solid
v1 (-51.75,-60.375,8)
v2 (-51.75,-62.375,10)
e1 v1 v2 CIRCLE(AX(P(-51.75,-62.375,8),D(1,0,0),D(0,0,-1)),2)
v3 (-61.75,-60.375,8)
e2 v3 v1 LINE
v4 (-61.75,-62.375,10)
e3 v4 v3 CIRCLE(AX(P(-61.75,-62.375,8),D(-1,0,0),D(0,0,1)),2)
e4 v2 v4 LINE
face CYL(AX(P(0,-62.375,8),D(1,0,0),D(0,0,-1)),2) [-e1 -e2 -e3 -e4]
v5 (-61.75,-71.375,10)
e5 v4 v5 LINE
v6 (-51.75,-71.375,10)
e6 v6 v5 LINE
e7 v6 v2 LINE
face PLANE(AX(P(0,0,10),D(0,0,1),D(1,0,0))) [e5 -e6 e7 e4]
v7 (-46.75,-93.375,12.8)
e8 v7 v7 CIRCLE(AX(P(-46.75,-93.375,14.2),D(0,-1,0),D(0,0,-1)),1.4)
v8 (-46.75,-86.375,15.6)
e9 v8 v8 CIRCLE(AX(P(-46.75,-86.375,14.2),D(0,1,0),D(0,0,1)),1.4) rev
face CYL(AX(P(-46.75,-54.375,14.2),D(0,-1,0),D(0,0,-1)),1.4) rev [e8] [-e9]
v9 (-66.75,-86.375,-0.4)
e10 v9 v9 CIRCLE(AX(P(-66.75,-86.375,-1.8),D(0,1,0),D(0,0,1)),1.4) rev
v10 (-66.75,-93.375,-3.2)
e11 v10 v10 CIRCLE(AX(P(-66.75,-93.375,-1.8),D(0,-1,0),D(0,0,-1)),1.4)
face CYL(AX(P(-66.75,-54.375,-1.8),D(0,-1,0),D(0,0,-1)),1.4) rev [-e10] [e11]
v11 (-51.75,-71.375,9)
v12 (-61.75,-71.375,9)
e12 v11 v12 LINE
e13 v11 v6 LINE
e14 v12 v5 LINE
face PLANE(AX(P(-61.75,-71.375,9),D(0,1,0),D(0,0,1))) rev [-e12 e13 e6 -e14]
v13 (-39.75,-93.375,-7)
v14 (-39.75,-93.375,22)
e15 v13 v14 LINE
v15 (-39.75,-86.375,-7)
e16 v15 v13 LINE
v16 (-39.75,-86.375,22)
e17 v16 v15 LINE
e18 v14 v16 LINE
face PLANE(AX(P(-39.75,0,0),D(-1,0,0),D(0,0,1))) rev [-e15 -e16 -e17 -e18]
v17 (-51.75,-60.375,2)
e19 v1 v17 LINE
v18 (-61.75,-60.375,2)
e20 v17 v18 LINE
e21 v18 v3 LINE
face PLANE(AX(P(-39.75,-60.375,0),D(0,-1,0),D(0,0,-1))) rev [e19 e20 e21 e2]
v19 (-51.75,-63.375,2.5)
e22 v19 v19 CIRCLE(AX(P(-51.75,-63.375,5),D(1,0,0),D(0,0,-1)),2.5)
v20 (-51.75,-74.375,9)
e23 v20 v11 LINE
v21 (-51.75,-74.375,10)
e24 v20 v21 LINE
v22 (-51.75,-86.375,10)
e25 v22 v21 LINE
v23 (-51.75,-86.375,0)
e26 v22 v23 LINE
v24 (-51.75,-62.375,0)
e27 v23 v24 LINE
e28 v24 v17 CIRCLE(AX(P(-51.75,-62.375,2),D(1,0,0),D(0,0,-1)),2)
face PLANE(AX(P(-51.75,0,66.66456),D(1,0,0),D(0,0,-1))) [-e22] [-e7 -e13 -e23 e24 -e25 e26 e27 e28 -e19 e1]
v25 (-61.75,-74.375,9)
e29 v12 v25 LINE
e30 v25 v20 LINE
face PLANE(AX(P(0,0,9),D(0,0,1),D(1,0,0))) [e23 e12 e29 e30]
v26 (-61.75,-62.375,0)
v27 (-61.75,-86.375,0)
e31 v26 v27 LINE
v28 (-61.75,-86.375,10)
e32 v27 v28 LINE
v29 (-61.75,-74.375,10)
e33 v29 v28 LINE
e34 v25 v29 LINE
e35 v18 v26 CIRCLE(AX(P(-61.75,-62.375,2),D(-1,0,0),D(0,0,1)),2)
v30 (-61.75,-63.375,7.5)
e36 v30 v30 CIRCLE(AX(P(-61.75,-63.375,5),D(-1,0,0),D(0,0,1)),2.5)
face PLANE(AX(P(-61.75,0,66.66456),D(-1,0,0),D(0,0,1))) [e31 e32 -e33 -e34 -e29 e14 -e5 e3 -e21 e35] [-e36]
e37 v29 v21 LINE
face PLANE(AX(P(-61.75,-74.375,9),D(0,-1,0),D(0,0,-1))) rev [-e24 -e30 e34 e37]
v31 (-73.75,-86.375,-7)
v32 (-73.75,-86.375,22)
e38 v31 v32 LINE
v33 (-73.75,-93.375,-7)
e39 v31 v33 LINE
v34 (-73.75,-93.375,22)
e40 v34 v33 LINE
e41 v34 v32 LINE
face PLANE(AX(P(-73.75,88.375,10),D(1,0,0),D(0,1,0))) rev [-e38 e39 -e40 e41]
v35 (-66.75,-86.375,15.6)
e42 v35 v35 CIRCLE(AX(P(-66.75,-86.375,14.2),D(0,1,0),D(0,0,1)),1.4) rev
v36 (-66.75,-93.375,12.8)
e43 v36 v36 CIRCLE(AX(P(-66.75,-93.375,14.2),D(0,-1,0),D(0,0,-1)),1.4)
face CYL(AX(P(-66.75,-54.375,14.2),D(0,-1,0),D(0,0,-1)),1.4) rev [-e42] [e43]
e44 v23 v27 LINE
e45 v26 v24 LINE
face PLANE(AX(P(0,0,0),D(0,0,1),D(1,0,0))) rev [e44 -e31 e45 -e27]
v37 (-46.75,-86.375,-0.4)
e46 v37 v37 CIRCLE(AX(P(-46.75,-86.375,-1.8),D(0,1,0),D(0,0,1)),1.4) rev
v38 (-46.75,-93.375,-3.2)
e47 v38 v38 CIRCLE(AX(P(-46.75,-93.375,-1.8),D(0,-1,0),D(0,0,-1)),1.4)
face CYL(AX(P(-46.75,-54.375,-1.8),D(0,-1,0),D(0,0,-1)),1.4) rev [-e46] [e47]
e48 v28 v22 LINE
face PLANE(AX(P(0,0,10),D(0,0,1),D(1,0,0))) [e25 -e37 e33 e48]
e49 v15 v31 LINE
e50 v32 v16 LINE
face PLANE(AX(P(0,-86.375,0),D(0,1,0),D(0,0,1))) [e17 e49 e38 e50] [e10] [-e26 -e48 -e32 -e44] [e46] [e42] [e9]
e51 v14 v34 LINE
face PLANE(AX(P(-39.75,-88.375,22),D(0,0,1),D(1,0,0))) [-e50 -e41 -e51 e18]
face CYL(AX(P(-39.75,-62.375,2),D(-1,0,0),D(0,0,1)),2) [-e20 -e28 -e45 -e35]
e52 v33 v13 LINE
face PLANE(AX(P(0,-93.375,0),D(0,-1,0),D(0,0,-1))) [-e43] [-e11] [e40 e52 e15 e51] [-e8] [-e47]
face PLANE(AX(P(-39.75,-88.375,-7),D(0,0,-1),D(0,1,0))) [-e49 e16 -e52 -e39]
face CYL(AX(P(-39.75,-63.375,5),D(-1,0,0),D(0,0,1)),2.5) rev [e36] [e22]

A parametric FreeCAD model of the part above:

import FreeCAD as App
import Part
import Sketcher

V = App.Vector
Q = App.Units.Quantity


def edges_at(feature, points):
    """Names of the edges that pass closest to the given points."""
    edges = feature.Shape.Edges
    near = lambda p: min(range(len(edges)), key=lambda i: edges[i].distToShape(Part.Vertex(*p))[0])
    return sorted({f"Edge{near(p) + 1}" for p in points})

doc = App.newDocument("Part")
params = doc.addObject("Spreadsheet::Sheet", "Params")
for row, (alias, value) in enumerate([
    ("sketch1_width", "147.5 mm"),
    ("sketch1_height", "176.75 mm"),
    ("pad1_length", "10 mm"),
    ("sketch2_width", "15 mm"),
    ("sketch2_height", "29 mm"),
    ("pad2_length", "34 mm"),
    ("sketch3_length", "12 mm"),
    ("sketch3_length2", "15 mm"),
    ("sketch3_length3", "29 mm"),
    ("sketch3_length4", "7 mm"),
    ("pad3_length", "34 mm"),
    ("sketch4_width", "113.5 mm"),
    ("sketch4_height", "176.75 mm"),
    ("pocket1_length", "30 mm"),
    ("sketch5_diameter", "5 mm"),
    ("sketch6_width", "3 mm"),
    ("pocket3_length", "3 mm"),
    ("sketch7_diameter", "5 mm"),
    ("sketch7_width", "10 mm"),
    ("sketch7_width2", "12 mm"),
    ("sketch7_height", "15 mm"),
    ("sketch7_height2", "161.75 mm"),
    ("sketch8_diameter", "5 mm"),
    ("sketch9_width", "2 mm"),
    ("sketch9_height", "10 mm"),
    ("fillet_radius", "2 mm"),
    ("sketch10_diameter", "2.8 mm"),
    ("pocket7_length", "34 mm"),
    ("sketch11_width", "12 mm"),
    ("sketch11_height", "8 mm"),
    ("pocket8_length", "34 mm"),
    ("sketch12_width", "8 mm"),
    ("sketch12_height", "7 mm"),
    ("sketch12_height2", "12 mm"),
    ("pocket9_length", "34 mm"),
    ("sketch13_diameter", "2.8 mm"),
    ("sketch13_width", "34 mm"),
    ("sketch13_height", "29 mm"),
    ("pad4_length", "5 mm"),
    ("sketch14_width", "34 mm"),
    ("sketch14_width2", "10 mm"),
    ("sketch14_height", "29 mm"),
    ("pocket10_length", "5 mm"),
    ("sketch15_width", "10 mm"),
    ("sketch15_height", "3 mm"),
    ("pocket11_length", "1 mm"),
], start=1):
    params.set(f"A{row}", alias)
    params.set(f"B{row}", "=" + value)
    params.setAlias(f"B{row}", alias)

body = doc.addObject("PartDesign::Body", "Body")

sketch1 = body.newObject("Sketcher::SketchObject", "Sketch")
sketch1.AttachmentSupport = (doc.getObject("XY_Plane"), [""])
sketch1.MapMode = "FlatFace"
sketch1.addGeometry(Part.LineSegment(V(-74, 88, 0), V(-74, -88, 0)), False)
sketch1.addGeometry(Part.LineSegment(V(-74, -88, 0), V(74, -88, 0)), False)
sketch1.addGeometry(Part.LineSegment(V(74, -88, 0), V(74, 88, 0)), False)
sketch1.addGeometry(Part.LineSegment(V(74, 88, 0), V(-74, 88, 0)), False)
sketch1.addConstraint(Sketcher.Constraint("Coincident", 0, 2, 1, 1))
sketch1.addConstraint(Sketcher.Constraint("Coincident", 1, 2, 2, 1))
sketch1.addConstraint(Sketcher.Constraint("Coincident", 2, 2, 3, 1))
sketch1.addConstraint(Sketcher.Constraint("Coincident", 3, 2, 0, 1))
sketch1.addConstraint(Sketcher.Constraint("Vertical", 0))
sketch1.addConstraint(Sketcher.Constraint("Horizontal", 1))
sketch1.addConstraint(Sketcher.Constraint("Vertical", 2))
sketch1.addConstraint(Sketcher.Constraint("Horizontal", 3))
sketch1.addConstraint(Sketcher.Constraint("Symmetric", 0, 2, 2, 2, -1, 1))
sketch1.addConstraint(Sketcher.Constraint("DistanceX", 1, 1, 1, 2, 147.5))
sketch1.addConstraint(Sketcher.Constraint("DistanceY", 0, 2, 0, 1, 176.75))
sketch1.setExpression("Constraints[9]", "Params.sketch1_width")
sketch1.setExpression("Constraints[10]", "Params.sketch1_height")
pad1 = body.newObject("PartDesign::Pad", "Pad")
pad1.Profile = sketch1
pad1.setExpression("Length", "Params.pad1_length")

sketch2 = body.newObject("Sketcher::SketchObject", "Sketch001")
sketch2.AttachmentSupport = (doc.getObject("YZ_Plane"), [""])
sketch2.MapMode = "FlatFace"
sketch2.AttachmentOffset = App.Placement(V(0, 0, -73.75), App.Rotation())
sketch2.addGeometry(Part.LineSegment(V(88, -7, 0), V(73, -7, 0)), False)
sketch2.addGeometry(Part.LineSegment(V(73, -7, 0), V(73, 22, 0)), False)
sketch2.addGeometry(Part.LineSegment(V(73, 22, 0), V(88, 22, 0)), False)
sketch2.addGeometry(Part.LineSegment(V(88, 22, 0), V(88, -7, 0)), False)
sketch2.addGeometry(Part.LineSegment(V(-73, -7, 0), V(-88, -7, 0)), False)
sketch2.addGeometry(Part.LineSegment(V(-88, -7, 0), V(-88, 22, 0)), False)
sketch2.addGeometry(Part.LineSegment(V(-88, 22, 0), V(-73, 22, 0)), False)
sketch2.addGeometry(Part.LineSegment(V(-73, 22, 0), V(-73, -7, 0)), False)
sketch2.addConstraint(Sketcher.Constraint("Coincident", 0, 2, 1, 1))
sketch2.addConstraint(Sketcher.Constraint("Coincident", 1, 2, 2, 1))
sketch2.addConstraint(Sketcher.Constraint("Coincident", 2, 2, 3, 1))
sketch2.addConstraint(Sketcher.Constraint("Coincident", 3, 2, 0, 1))
sketch2.addConstraint(Sketcher.Constraint("Coincident", 4, 2, 5, 1))
sketch2.addConstraint(Sketcher.Constraint("Coincident", 5, 2, 6, 1))
sketch2.addConstraint(Sketcher.Constraint("Coincident", 6, 2, 7, 1))
sketch2.addConstraint(Sketcher.Constraint("Coincident", 7, 2, 4, 1))
sketch2.addConstraint(Sketcher.Constraint("Horizontal", 0))
sketch2.addConstraint(Sketcher.Constraint("Vertical", 1))
sketch2.addConstraint(Sketcher.Constraint("Horizontal", 2))
sketch2.addConstraint(Sketcher.Constraint("Vertical", 3))
sketch2.addConstraint(Sketcher.Constraint("Horizontal", 4))
sketch2.addConstraint(Sketcher.Constraint("Vertical", 5))
sketch2.addConstraint(Sketcher.Constraint("Horizontal", 6))
sketch2.addConstraint(Sketcher.Constraint("Vertical", 7))
sketch2.addConstraint(Sketcher.Constraint("Symmetric", 3, 2, 4, 2, -2))
sketch2.addConstraint(Sketcher.Constraint("Symmetric", 1, 2, 6, 2, -2))
sketch2.addConstraint(Sketcher.Constraint("DistanceX", 0, 2, 0, 1, 15.0))
sketch2.addConstraint(Sketcher.Constraint("DistanceY", 1, 1, 1, 2, 29.0))
sketch2.addConstraint(Sketcher.Constraint("DistanceY", 0, 2, -1, 1, 7.0))
sketch2.addConstraint(Sketcher.Constraint("DistanceX", 4, 2, 0, 2, 161.75))
sketch2.setExpression("Constraints[18]", "Params.sketch2_width")
sketch2.setExpression("Constraints[19]", "Params.sketch2_height")
pad2 = body.newObject("PartDesign::Pad", "Pad001")
pad2.Profile = sketch2
pad2.setExpression("Length", "Params.pad2_length")
doc.recompute()

mirrored = body.newObject("PartDesign::Mirrored", "Mirrored")
mirrored.Originals = [pad2]
mirrored.MirrorPlane = (doc.getObject("YZ_Plane"), [""])
body.Tip = mirrored

sketch3 = body.newObject("Sketcher::SketchObject", "Sketch002")
sketch3.AttachmentSupport = (doc.getObject("YZ_Plane"), [""])
sketch3.MapMode = "FlatFace"
sketch3.AttachmentOffset = App.Placement(V(0, 0, -73.75), App.Rotation())
sketch3.addGeometry(Part.LineSegment(V(0, 14, 0), V(24, 47, 0)), False)
sketch3.addGeometry(Part.LineSegment(V(24, 47, 0), V(14, 54, 0)), False)
sketch3.addGeometry(Part.LineSegment(V(14, 54, 0), V(22, 67, 0)), False)
sketch3.addGeometry(Part.LineSegment(V(22, 67, 0), V(46, 50, 0)), False)
sketch3.addGeometry(Part.LineSegment(V(46, 50, 0), V(38, 38, 0)), False)
sketch3.addGeometry(Part.LineSegment(V(38, 38, 0), V(32, 42, 0)), False)
sketch3.addGeometry(Part.LineSegment(V(32, 42, 0), V(10, 10, 0)), False)
sketch3.addGeometry(Part.LineSegment(V(10, 10, 0), V(-10, 10, 0)), False)
sketch3.addGeometry(Part.LineSegment(V(-10, 10, 0), V(-32, 42, 0)), False)
sketch3.addGeometry(Part.LineSegment(V(-32, 42, 0), V(-38, 38, 0)), False)
sketch3.addGeometry(Part.LineSegment(V(-38, 38, 0), V(-46, 50, 0)), False)
sketch3.addGeometry(Part.LineSegment(V(-46, 50, 0), V(-22, 67, 0)), False)
sketch3.addGeometry(Part.LineSegment(V(-22, 67, 0), V(-14, 54, 0)), False)
sketch3.addGeometry(Part.LineSegment(V(-14, 54, 0), V(-24, 47, 0)), False)
sketch3.addGeometry(Part.LineSegment(V(-24, 47, 0), V(0, 14, 0)), False)
sketch3.addConstraint(Sketcher.Constraint("Coincident", 0, 2, 1, 1))
sketch3.addConstraint(Sketcher.Constraint("Coincident", 1, 2, 2, 1))
sketch3.addConstraint(Sketcher.Constraint("Coincident", 2, 2, 3, 1))
sketch3.addConstraint(Sketcher.Constraint("Coincident", 3, 2, 4, 1))
sketch3.addConstraint(Sketcher.Constraint("Coincident", 4, 2, 5, 1))
sketch3.addConstraint(Sketcher.Constraint("Coincident", 5, 2, 6, 1))
sketch3.addConstraint(Sketcher.Constraint("Coincident", 6, 2, 7, 1))
sketch3.addConstraint(Sketcher.Constraint("Coincident", 7, 2, 8, 1))
sketch3.addConstraint(Sketcher.Constraint("Coincident", 8, 2, 9, 1))
sketch3.addConstraint(Sketcher.Constraint("Coincident", 9, 2, 10, 1))
sketch3.addConstraint(Sketcher.Constraint("Coincident", 10, 2, 11, 1))
sketch3.addConstraint(Sketcher.Constraint("Coincident", 11, 2, 12, 1))
sketch3.addConstraint(Sketcher.Constraint("Coincident", 12, 2, 13, 1))
sketch3.addConstraint(Sketcher.Constraint("Coincident", 13, 2, 14, 1))
sketch3.addConstraint(Sketcher.Constraint("Coincident", 14, 2, 0, 1))
sketch3.addConstraint(Sketcher.Constraint("Horizontal", 7))
sketch3.addConstraint(Sketcher.Constraint("Symmetric", 5, 2, 8, 2, -2))
sketch3.addConstraint(Sketcher.Constraint("Symmetric", 4, 2, 9, 2, -2))
sketch3.addConstraint(Sketcher.Constraint("Symmetric", 3, 2, 10, 2, -2))
sketch3.addConstraint(Sketcher.Constraint("Symmetric", 2, 2, 11, 2, -2))
sketch3.addConstraint(Sketcher.Constraint("Symmetric", 1, 2, 12, 2, -2))
sketch3.addConstraint(Sketcher.Constraint("Symmetric", 0, 2, 13, 2, -2))
sketch3.addConstraint(Sketcher.Constraint("PointOnObject", 14, 2, -2))
sketch3.addConstraint(Sketcher.Constraint("Perpendicular", 0, 1))
sketch3.addConstraint(Sketcher.Constraint("Perpendicular", 1, 2))
sketch3.addConstraint(Sketcher.Constraint("Perpendicular", 2, 3))
sketch3.addConstraint(Sketcher.Constraint("Perpendicular", 3, 4))
sketch3.addConstraint(Sketcher.Constraint("Perpendicular", 4, 5))
sketch3.addConstraint(Sketcher.Constraint("Perpendicular", 5, 6))
sketch3.addConstraint(Sketcher.Constraint("Perpendicular", 8, 9))
sketch3.addConstraint(Sketcher.Constraint("Equal", 2, 4))
sketch3.addConstraint(Sketcher.Constraint("Angle", 0, Q("55 deg")))
sketch3.addConstraint(Sketcher.Constraint("Distance", 1, 12.0))
sketch3.addConstraint(Sketcher.Constraint("Distance", 2, 15.0))
sketch3.addConstraint(Sketcher.Constraint("Distance", 3, 29.0))
sketch3.addConstraint(Sketcher.Constraint("Distance", 5, 7.0))
sketch3.addConstraint(Sketcher.Constraint("DistanceY", -1, 1, 6, 2, 10.0))
sketch3.addConstraint(Sketcher.Constraint("DistanceX", -1, 1, 0, 2, 23.651))
sketch3.addConstraint(Sketcher.Constraint("DistanceX", 7, 2, 7, 1, 19.209821))
sketch3.setExpression("Constraints[32]", "Params.sketch3_length")
sketch3.setExpression("Constraints[33]", "Params.sketch3_length2")
sketch3.setExpression("Constraints[34]", "Params.sketch3_length3")
sketch3.setExpression("Constraints[35]", "Params.sketch3_length4")
pad3 = body.newObject("PartDesign::Pad", "Pad002")
pad3.Profile = sketch3
pad3.setExpression("Length", "Params.pad3_length")

sketch4 = body.newObject("Sketcher::SketchObject", "Sketch003")
sketch4.AttachmentSupport = (doc.getObject("XY_Plane"), [""])
sketch4.MapMode = "FlatFace"
sketch4.AttachmentOffset = App.Placement(V(0, 0, 22), App.Rotation())
sketch4.addGeometry(Part.LineSegment(V(-40, 88, 0), V(-40, -88, 0)), False)
sketch4.addGeometry(Part.LineSegment(V(-40, -88, 0), V(74, -88, 0)), False)
sketch4.addGeometry(Part.LineSegment(V(74, -88, 0), V(74, 88, 0)), False)
sketch4.addGeometry(Part.LineSegment(V(74, 88, 0), V(-40, 88, 0)), False)
sketch4.addConstraint(Sketcher.Constraint("Coincident", 0, 2, 1, 1))
sketch4.addConstraint(Sketcher.Constraint("Coincident", 1, 2, 2, 1))
sketch4.addConstraint(Sketcher.Constraint("Coincident", 2, 2, 3, 1))
sketch4.addConstraint(Sketcher.Constraint("Coincident", 3, 2, 0, 1))
sketch4.addConstraint(Sketcher.Constraint("Vertical", 0))
sketch4.addConstraint(Sketcher.Constraint("Horizontal", 1))
sketch4.addConstraint(Sketcher.Constraint("Vertical", 2))
sketch4.addConstraint(Sketcher.Constraint("Horizontal", 3))
sketch4.addConstraint(Sketcher.Constraint("DistanceX", 1, 1, 1, 2, 113.5))
sketch4.addConstraint(Sketcher.Constraint("DistanceY", 0, 2, 0, 1, 176.75))
sketch4.addConstraint(Sketcher.Constraint("DistanceX", 0, 2, -1, 1, 39.75))
sketch4.addConstraint(Sketcher.Constraint("DistanceY", 0, 2, -1, 1, 88.375))
sketch4.setExpression("Constraints[8]", "Params.sketch4_width")
sketch4.setExpression("Constraints[9]", "Params.sketch4_height")
pocket1 = body.newObject("PartDesign::Pocket", "Pocket")
pocket1.Profile = sketch4
pocket1.setExpression("Length", "Params.pocket1_length")

sketch5 = body.newObject("Sketcher::SketchObject", "Sketch004")
sketch5.AttachmentSupport = (doc.getObject("XY_Plane"), [""])
sketch5.MapMode = "FlatFace"
sketch5.addGeometry(Part.Circle(V(-49.8, 58.4, 0), V(0, 0, 1), 2.5), False)
sketch5.addGeometry(Part.Circle(V(-63.8, 58.4, 0), V(0, 0, 1), 2.5), False)
sketch5.addGeometry(Part.Circle(V(-49.8, -53.4, 0), V(0, 0, 1), 2.5), False)
sketch5.addGeometry(Part.Circle(V(-63.8, -53.4, 0), V(0, 0, 1), 2.5), False)
sketch5.addConstraint(Sketcher.Constraint("Equal", 0, 1))
sketch5.addConstraint(Sketcher.Constraint("Equal", 1, 2))
sketch5.addConstraint(Sketcher.Constraint("Equal", 2, 3))
sketch5.addConstraint(Sketcher.Constraint("Horizontal", 0, 3, 1, 3))
sketch5.addConstraint(Sketcher.Constraint("Horizontal", 2, 3, 3, 3))
sketch5.addConstraint(Sketcher.Constraint("Vertical", 0, 3, 2, 3))
sketch5.addConstraint(Sketcher.Constraint("Vertical", 1, 3, 3, 3))
sketch5.addConstraint(Sketcher.Constraint("Diameter", 0, 5.0))
sketch5.addConstraint(Sketcher.Constraint("DistanceX", 1, 3, 0, 3, 14.0))
sketch5.addConstraint(Sketcher.Constraint("DistanceX", 0, 3, -1, 1, 49.75))
sketch5.addConstraint(Sketcher.Constraint("DistanceY", 2, 3, 0, 3, 111.75))
sketch5.addConstraint(Sketcher.Constraint("DistanceY", -1, 1, 0, 3, 58.375))
sketch5.setExpression("Constraints[7]", "Params.sketch5_diameter")
pocket2 = body.newObject("PartDesign::Pocket", "Pocket001")
pocket2.Profile = sketch5
pocket2.Type = "ThroughAll"
pocket2.Reversed = True

sketch6 = body.newObject("Sketcher::SketchObject", "Sketch005")
sketch6.AttachmentSupport = (doc.getObject("XY_Plane"), [""])
sketch6.MapMode = "FlatFace"
sketch6.AttachmentOffset = App.Placement(V(0, 0, -7), App.Rotation())
sketch6.addGeometry(Part.LineSegment(V(-70.8, 88.4, 0), V(-70.8, 85.4, 0)), False)
sketch6.addGeometry(Part.LineSegment(V(-70.8, 85.4, 0), V(-73.8, 85.4, 0)), False)
sketch6.addGeometry(Part.LineSegment(V(-73.8, 85.4, 0), V(-73.8, 88.4, 0)), False)
sketch6.addGeometry(Part.LineSegment(V(-73.8, 88.4, 0), V(-70.8, 88.4, 0)), False)
sketch6.addConstraint(Sketcher.Constraint("Coincident", 0, 2, 1, 1))
sketch6.addConstraint(Sketcher.Constraint("Coincident", 1, 2, 2, 1))
sketch6.addConstraint(Sketcher.Constraint("Coincident", 2, 2, 3, 1))
sketch6.addConstraint(Sketcher.Constraint("Coincident", 3, 2, 0, 1))
sketch6.addConstraint(Sketcher.Constraint("Vertical", 0))
sketch6.addConstraint(Sketcher.Constraint("Horizontal", 1))
sketch6.addConstraint(Sketcher.Constraint("Vertical", 2))
sketch6.addConstraint(Sketcher.Constraint("Horizontal", 3))
sketch6.addConstraint(Sketcher.Constraint("Equal", 3, 0))
sketch6.addConstraint(Sketcher.Constraint("DistanceX", 1, 2, 1, 1, 3.0))
sketch6.addConstraint(Sketcher.Constraint("DistanceX", 0, 2, -1, 1, 70.75))
sketch6.addConstraint(Sketcher.Constraint("DistanceY", -1, 1, 0, 2, 85.375))
sketch6.setExpression("Constraints[9]", "Params.sketch6_width")
pocket3 = body.newObject("PartDesign::Pocket", "Pocket002")
pocket3.Profile = sketch6
pocket3.setExpression("Length", "Params.pocket3_length")
pocket3.Reversed = True

sketch7 = body.newObject("Sketcher::SketchObject", "Sketch006")
sketch7.AttachmentSupport = (doc.getObject("XY_Plane"), [""])
sketch7.MapMode = "FlatFace"
sketch7.addGeometry(Part.LineSegment(V(-51.8, -73.4, 0), V(-51.8, -58.4, 0)), False)
sketch7.addGeometry(Part.LineSegment(V(-51.8, -58.4, 0), V(-61.8, -58.4, 0)), False)
sketch7.addGeometry(Part.LineSegment(V(-61.8, -58.4, 0), V(-61.8, -73.4, 0)), False)
sketch7.addGeometry(Part.LineSegment(V(-61.8, -73.4, 0), V(-73.8, -73.4, 0)), False)
sketch7.addGeometry(Part.LineSegment(V(-73.8, -73.4, 0), V(-73.8, 88.4, 0)), False)
sketch7.addGeometry(Part.LineSegment(V(-73.8, 88.4, 0), V(-39.8, 88.4, 0)), False)
sketch7.addGeometry(Part.LineSegment(V(-39.8, 88.4, 0), V(-39.8, -73.4, 0)), False)
sketch7.addGeometry(Part.LineSegment(V(-39.8, -73.4, 0), V(-51.8, -73.4, 0)), False)
sketch7.addGeometry(Part.Circle(V(-63.8, 58.4, 0), V(0, 0, 1), 2.5), False)
sketch7.addGeometry(Part.Circle(V(-49.8, -53.4, 0), V(0, 0, 1), 2.5), False)
sketch7.addGeometry(Part.Circle(V(-63.8, -53.4, 0), V(0, 0, 1), 2.5), False)
sketch7.addGeometry(Part.Circle(V(-49.8, 58.4, 0), V(0, 0, 1), 2.5), False)
sketch7.addConstraint(Sketcher.Constraint("Coincident", 0, 2, 1, 1))
sketch7.addConstraint(Sketcher.Constraint("Coincident", 1, 2, 2, 1))
sketch7.addConstraint(Sketcher.Constraint("Coincident", 2, 2, 3, 1))
sketch7.addConstraint(Sketcher.Constraint("Coincident", 3, 2, 4, 1))
sketch7.addConstraint(Sketcher.Constraint("Coincident", 4, 2, 5, 1))
sketch7.addConstraint(Sketcher.Constraint("Coincident", 5, 2, 6, 1))
sketch7.addConstraint(Sketcher.Constraint("Coincident", 6, 2, 7, 1))
sketch7.addConstraint(Sketcher.Constraint("Coincident", 7, 2, 0, 1))
sketch7.addConstraint(Sketcher.Constraint("Vertical", 0))
sketch7.addConstraint(Sketcher.Constraint("Horizontal", 1))
sketch7.addConstraint(Sketcher.Constraint("Vertical", 2))
sketch7.addConstraint(Sketcher.Constraint("Horizontal", 3))
sketch7.addConstraint(Sketcher.Constraint("Vertical", 4))
sketch7.addConstraint(Sketcher.Constraint("Horizontal", 5))
sketch7.addConstraint(Sketcher.Constraint("Vertical", 6))
sketch7.addConstraint(Sketcher.Constraint("Horizontal", 7))
sketch7.addConstraint(Sketcher.Constraint("Equal", 8, 9))
sketch7.addConstraint(Sketcher.Constraint("Equal", 9, 10))
sketch7.addConstraint(Sketcher.Constraint("Equal", 10, 11))
sketch7.addConstraint(Sketcher.Constraint("Horizontal", 9, 3, 10, 3))
sketch7.addConstraint(Sketcher.Constraint("Horizontal", 8, 3, 11, 3))
sketch7.addConstraint(Sketcher.Constraint("Horizontal", 3, 2, 6, 2))
sketch7.addConstraint(Sketcher.Constraint("Vertical", 8, 3, 10, 3))
sketch7.addConstraint(Sketcher.Constraint("Vertical", 9, 3, 11, 3))
sketch7.addConstraint(Sketcher.Constraint("Equal", 3, 7))
sketch7.addConstraint(Sketcher.Constraint("Diameter", 8, 5.0))
sketch7.addConstraint(Sketcher.Constraint("DistanceX", 1, 2, 1, 1, 10.0))
sketch7.addConstraint(Sketcher.Constraint("DistanceX", 3, 2, 3, 1, 12.0))
sketch7.addConstraint(Sketcher.Constraint("DistanceY", 0, 1, 0, 2, 15.0))
sketch7.addConstraint(Sketcher.Constraint("DistanceX", 8, 3, 9, 3, 14.0))
sketch7.addConstraint(Sketcher.Constraint("DistanceX", 0, 2, 9, 3, 2.0))
sketch7.addConstraint(Sketcher.Constraint("DistanceY", 0, 2, 9, 3, 5.0))
sketch7.addConstraint(Sketcher.Constraint("DistanceY", 8, 3, 4, 2, 30.0))
sketch7.addConstraint(Sketcher.Constraint("DistanceY", 4, 1, 4, 2, 161.75))
sketch7.addConstraint(Sketcher.Constraint("DistanceX", 8, 3, -1, 1, 63.75))
sketch7.addConstraint(Sketcher.Constraint("DistanceY", -1, 1, 8, 3, 58.375))
sketch7.setExpression("Constraints[25]", "Params.sketch7_diameter")
sketch7.setExpression("Constraints[26]", "Params.sketch7_width")
sketch7.setExpression("Constraints[27]", "Params.sketch7_width2")
sketch7.setExpression("Constraints[28]", "Params.sketch7_height")
sketch7.setExpression("Constraints[33]", "Params.sketch7_height2")
pocket4 = body.newObject("PartDesign::Pocket", "Pocket003")
pocket4.Profile = sketch7
pocket4.Type = "ThroughAll"
pocket4.Midplane = True

sketch8 = body.newObject("Sketcher::SketchObject", "Sketch007")
sketch8.AttachmentSupport = (doc.getObject("YZ_Plane"), [""])
sketch8.MapMode = "FlatFace"
sketch8.AttachmentOffset = App.Placement(V(0, 0, -61.75), App.Rotation())
sketch8.addGeometry(Part.Circle(V(-63.4, 5, 0), V(0, 0, 1), 2.5), False)
sketch8.addConstraint(Sketcher.Constraint("Diameter", 0, 5.0))
sketch8.addConstraint(Sketcher.Constraint("DistanceY", -1, 1, 0, 3, 5.0))
sketch8.addConstraint(Sketcher.Constraint("DistanceX", 0, 3, -1, 1, 63.375))
sketch8.setExpression("Constraints[0]", "Params.sketch8_diameter")
pocket5 = body.newObject("PartDesign::Pocket", "Pocket004")
pocket5.Profile = sketch8
pocket5.Type = "ThroughAll"
pocket5.Midplane = True

sketch9 = body.newObject("Sketcher::SketchObject", "Sketch008")
sketch9.AttachmentSupport = (doc.getObject("YZ_Plane"), [""])
sketch9.MapMode = "FlatFace"
sketch9.AttachmentOffset = App.Placement(V(0, 0, -61.75), App.Rotation())
sketch9.addGeometry(Part.LineSegment(V(-58.4, 0, 0), V(-60.4, 0, 0)), False)
sketch9.addGeometry(Part.LineSegment(V(-60.4, 0, 0), V(-60.4, 10, 0)), False)
sketch9.addGeometry(Part.LineSegment(V(-60.4, 10, 0), V(-58.4, 10, 0)), False)
sketch9.addGeometry(Part.LineSegment(V(-58.4, 10, 0), V(-58.4, 0, 0)), False)
sketch9.addConstraint(Sketcher.Constraint("Coincident", 0, 2, 1, 1))
sketch9.addConstraint(Sketcher.Constraint("Coincident", 1, 2, 2, 1))
sketch9.addConstraint(Sketcher.Constraint("Coincident", 2, 2, 3, 1))
sketch9.addConstraint(Sketcher.Constraint("Coincident", 3, 2, 0, 1))
sketch9.addConstraint(Sketcher.Constraint("Horizontal", 0))
sketch9.addConstraint(Sketcher.Constraint("Vertical", 1))
sketch9.addConstraint(Sketcher.Constraint("Horizontal", 2))
sketch9.addConstraint(Sketcher.Constraint("Vertical", 3))
sketch9.addConstraint(Sketcher.Constraint("PointOnObject", 0, 2, -1))
sketch9.addConstraint(Sketcher.Constraint("DistanceX", 0, 2, 0, 1, 2.0))
sketch9.addConstraint(Sketcher.Constraint("DistanceY", 1, 1, 1, 2, 10.0))
sketch9.addConstraint(Sketcher.Constraint("DistanceX", 0, 2, -1, 1, 60.375))
sketch9.setExpression("Constraints[9]", "Params.sketch9_width")
sketch9.setExpression("Constraints[10]", "Params.sketch9_height")
pocket6 = body.newObject("PartDesign::Pocket", "Pocket005")
pocket6.Profile = sketch9
pocket6.Type = "ThroughAll"
pocket6.Midplane = True
doc.recompute()

fillet = body.newObject("PartDesign::Fillet", "Fillet")
fillet.Base = (pocket6, edges_at(pocket6, [(-56.75, -60.375, 0), (-56.75, -60.375, 10)]))
fillet.setExpression("Radius", "Params.fillet_radius")

sketch10 = body.newObject("Sketcher::SketchObject", "Sketch009")
sketch10.AttachmentSupport = (doc.getObject("XZ_Plane"), [""])
sketch10.MapMode = "FlatFace"
sketch10.AttachmentOffset = App.Placement(V(0, 0, 88.375), App.Rotation())
sketch10.addGeometry(Part.Circle(V(-46.8, -1.8, 0), V(0, 0, 1), 1.4), False)
sketch10.addGeometry(Part.Circle(V(-66.8, -1.8, 0), V(0, 0, 1), 1.4), False)
sketch10.addGeometry(Part.Circle(V(-66.8, 14.2, 0), V(0, 0, 1), 1.4), False)
sketch10.addGeometry(Part.Circle(V(-46.8, 14.2, 0), V(0, 0, 1), 1.4), False)
sketch10.addConstraint(Sketcher.Constraint("Equal", 0, 1))
sketch10.addConstraint(Sketcher.Constraint("Equal", 1, 2))
sketch10.addConstraint(Sketcher.Constraint("Equal", 2, 3))
sketch10.addConstraint(Sketcher.Constraint("Horizontal", 0, 3, 1, 3))
sketch10.addConstraint(Sketcher.Constraint("Horizontal", 2, 3, 3, 3))
sketch10.addConstraint(Sketcher.Constraint("Vertical", 1, 3, 2, 3))
sketch10.addConstraint(Sketcher.Constraint("Vertical", 0, 3, 3, 3))
sketch10.addConstraint(Sketcher.Constraint("Diameter", 0, 2.8))
sketch10.addConstraint(Sketcher.Constraint("DistanceX", 1, 3, 0, 3, 20.0))
sketch10.addConstraint(Sketcher.Constraint("DistanceY", 1, 3, 2, 3, 16.0))
sketch10.addConstraint(Sketcher.Constraint("DistanceY", 0, 3, -1, 1, 1.8))
sketch10.addConstraint(Sketcher.Constraint("DistanceX", 0, 3, -1, 1, 46.75))
sketch10.setExpression("Constraints[7]", "Params.sketch10_diameter")
pocket7 = body.newObject("PartDesign::Pocket", "Pocket006")
pocket7.Profile = sketch10
pocket7.setExpression("Length", "Params.pocket7_length")

sketch11 = body.newObject("Sketcher::SketchObject", "Sketch010")
sketch11.AttachmentSupport = (doc.getObject("XY_Plane"), [""])
sketch11.MapMode = "FlatFace"
sketch11.AttachmentOffset = App.Placement(V(0, 0, -7), App.Rotation())
sketch11.addGeometry(Part.LineSegment(V(-40, -73, 0), V(-40, -81, 0)), False)
sketch11.addGeometry(Part.LineSegment(V(-40, -81, 0), V(-52, -81, 0)), False)
sketch11.addGeometry(Part.LineSegment(V(-52, -81, 0), V(-52, -73, 0)), False)
sketch11.addGeometry(Part.LineSegment(V(-52, -73, 0), V(-40, -73, 0)), False)
sketch11.addGeometry(Part.LineSegment(V(-62, -73, 0), V(-62, -81, 0)), False)
sketch11.addGeometry(Part.LineSegment(V(-62, -81, 0), V(-74, -81, 0)), False)
sketch11.addGeometry(Part.LineSegment(V(-74, -81, 0), V(-74, -73, 0)), False)
sketch11.addGeometry(Part.LineSegment(V(-74, -73, 0), V(-62, -73, 0)), False)
sketch11.addConstraint(Sketcher.Constraint("Coincident", 0, 2, 1, 1))
sketch11.addConstraint(Sketcher.Constraint("Coincident", 1, 2, 2, 1))
sketch11.addConstraint(Sketcher.Constraint("Coincident", 2, 2, 3, 1))
sketch11.addConstraint(Sketcher.Constraint("Coincident", 3, 2, 0, 1))
sketch11.addConstraint(Sketcher.Constraint("Coincident", 4, 2, 5, 1))
sketch11.addConstraint(Sketcher.Constraint("Coincident", 5, 2, 6, 1))
sketch11.addConstraint(Sketcher.Constraint("Coincident", 6, 2, 7, 1))
sketch11.addConstraint(Sketcher.Constraint("Coincident", 7, 2, 4, 1))
sketch11.addConstraint(Sketcher.Constraint("Vertical", 0))
sketch11.addConstraint(Sketcher.Constraint("Horizontal", 1))
sketch11.addConstraint(Sketcher.Constraint("Vertical", 2))
sketch11.addConstraint(Sketcher.Constraint("Horizontal", 3))
sketch11.addConstraint(Sketcher.Constraint("Vertical", 4))
sketch11.addConstraint(Sketcher.Constraint("Horizontal", 5))
sketch11.addConstraint(Sketcher.Constraint("Vertical", 6))
sketch11.addConstraint(Sketcher.Constraint("Horizontal", 7))
sketch11.addConstraint(Sketcher.Constraint("Horizontal", 1, 2, 4, 2))
sketch11.addConstraint(Sketcher.Constraint("Horizontal", 3, 2, 6, 2))
sketch11.addConstraint(Sketcher.Constraint("Equal", 3, 5))
sketch11.addConstraint(Sketcher.Constraint("DistanceX", 1, 2, 1, 1, 12.0))
sketch11.addConstraint(Sketcher.Constraint("DistanceY", 0, 2, 0, 1, 8.0))
sketch11.addConstraint(Sketcher.Constraint("DistanceX", 4, 2, 1, 2, 10.0))
sketch11.addConstraint(Sketcher.Constraint("DistanceX", 0, 2, -1, 1, 39.75))
sketch11.addConstraint(Sketcher.Constraint("DistanceY", 0, 2, -1, 1, 81.375))
sketch11.setExpression("Constraints[19]", "Params.sketch11_width")
sketch11.setExpression("Constraints[20]", "Params.sketch11_height")
pocket8 = body.newObject("PartDesign::Pocket", "Pocket007")
pocket8.Profile = sketch11
pocket8.setExpression("Length", "Params.pocket8_length")
pocket8.Reversed = True

sketch12 = body.newObject("Sketcher::SketchObject", "Sketch011")
sketch12.AttachmentSupport = (doc.getObject("YZ_Plane"), [""])
sketch12.MapMode = "FlatFace"
sketch12.AttachmentOffset = App.Placement(V(0, 0, -61.75), App.Rotation())
sketch12.addGeometry(Part.LineSegment(V(-73, -7, 0), V(-81, -7, 0)), False)
sketch12.addGeometry(Part.LineSegment(V(-81, -7, 0), V(-81, 0, 0)), False)
sketch12.addGeometry(Part.LineSegment(V(-81, 0, 0), V(-73, 0, 0)), False)
sketch12.addGeometry(Part.LineSegment(V(-73, 0, 0), V(-73, -7, 0)), False)
sketch12.addGeometry(Part.LineSegment(V(-73, 10, 0), V(-81, 10, 0)), False)
sketch12.addGeometry(Part.LineSegment(V(-81, 10, 0), V(-81, 22, 0)), False)
sketch12.addGeometry(Part.LineSegment(V(-81, 22, 0), V(-73, 22, 0)), False)
sketch12.addGeometry(Part.LineSegment(V(-73, 22, 0), V(-73, 10, 0)), False)
sketch12.addConstraint(Sketcher.Constraint("Coincident", 0, 2, 1, 1))
sketch12.addConstraint(Sketcher.Constraint("Coincident", 1, 2, 2, 1))
sketch12.addConstraint(Sketcher.Constraint("Coincident", 2, 2, 3, 1))
sketch12.addConstraint(Sketcher.Constraint("Coincident", 3, 2, 0, 1))
sketch12.addConstraint(Sketcher.Constraint("Coincident", 4, 2, 5, 1))
sketch12.addConstraint(Sketcher.Constraint("Coincident", 5, 2, 6, 1))
sketch12.addConstraint(Sketcher.Constraint("Coincident", 6, 2, 7, 1))
sketch12.addConstraint(Sketcher.Constraint("Coincident", 7, 2, 4, 1))
sketch12.addConstraint(Sketcher.Constraint("Horizontal", 0))
sketch12.addConstraint(Sketcher.Constraint("Vertical", 1))
sketch12.addConstraint(Sketcher.Constraint("Horizontal", 2))
sketch12.addConstraint(Sketcher.Constraint("Vertical", 3))
sketch12.addConstraint(Sketcher.Constraint("Horizontal", 4))
sketch12.addConstraint(Sketcher.Constraint("Vertical", 5))
sketch12.addConstraint(Sketcher.Constraint("Horizontal", 6))
sketch12.addConstraint(Sketcher.Constraint("Vertical", 7))
sketch12.addConstraint(Sketcher.Constraint("PointOnObject", 1, 2, -1))
sketch12.addConstraint(Sketcher.Constraint("Vertical", 1, 2, 4, 2))
sketch12.addConstraint(Sketcher.Constraint("Vertical", 3, 2, 6, 2))
sketch12.addConstraint(Sketcher.Constraint("DistanceX", 0, 2, 0, 1, 8.0))
sketch12.addConstraint(Sketcher.Constraint("DistanceY", 1, 1, 1, 2, 7.0))
sketch12.addConstraint(Sketcher.Constraint("DistanceY", 5, 1, 5, 2, 12.0))
sketch12.addConstraint(Sketcher.Constraint("DistanceY", -1, 1, 4, 2, 10.0))
sketch12.addConstraint(Sketcher.Constraint("DistanceX", 0, 2, -1, 1, 81.375))
sketch12.setExpression("Constraints[19]", "Params.sketch12_width")
sketch12.setExpression("Constraints[20]", "Params.sketch12_height")
sketch12.setExpression("Constraints[21]", "Params.sketch12_height2")
pocket9 = body.newObject("PartDesign::Pocket", "Pocket008")
pocket9.Profile = sketch12
pocket9.setExpression("Length", "Params.pocket9_length")
pocket9.Reversed = True

sketch13 = body.newObject("Sketcher::SketchObject", "Sketch012")
sketch13.AttachmentSupport = (doc.getObject("XZ_Plane"), [""])
sketch13.MapMode = "FlatFace"
sketch13.AttachmentOffset = App.Placement(V(0, 0, 93.375), App.Rotation())
sketch13.addGeometry(Part.LineSegment(V(-73.8, 22, 0), V(-73.8, -7, 0)), False)
sketch13.addGeometry(Part.LineSegment(V(-73.8, -7, 0), V(-39.8, -7, 0)), False)
sketch13.addGeometry(Part.LineSegment(V(-39.8, -7, 0), V(-39.8, 22, 0)), False)
sketch13.addGeometry(Part.LineSegment(V(-39.8, 22, 0), V(-73.8, 22, 0)), False)
sketch13.addGeometry(Part.Circle(V(-66.8, -1.8, 0), V(0, 0, 1), 1.4), False)
sketch13.addGeometry(Part.Circle(V(-46.8, -1.8, 0), V(0, 0, 1), 1.4), False)
sketch13.addGeometry(Part.Circle(V(-66.8, 14.2, 0), V(0, 0, 1), 1.4), False)
sketch13.addGeometry(Part.Circle(V(-46.8, 14.2, 0), V(0, 0, 1), 1.4), False)
sketch13.addConstraint(Sketcher.Constraint("Coincident", 0, 2, 1, 1))
sketch13.addConstraint(Sketcher.Constraint("Coincident", 1, 2, 2, 1))
sketch13.addConstraint(Sketcher.Constraint("Coincident", 2, 2, 3, 1))
sketch13.addConstraint(Sketcher.Constraint("Coincident", 3, 2, 0, 1))
sketch13.addConstraint(Sketcher.Constraint("Vertical", 0))
sketch13.addConstraint(Sketcher.Constraint("Horizontal", 1))
sketch13.addConstraint(Sketcher.Constraint("Vertical", 2))
sketch13.addConstraint(Sketcher.Constraint("Horizontal", 3))
sketch13.addConstraint(Sketcher.Constraint("Equal", 4, 5))
sketch13.addConstraint(Sketcher.Constraint("Equal", 5, 6))
sketch13.addConstraint(Sketcher.Constraint("Equal", 6, 7))
sketch13.addConstraint(Sketcher.Constraint("Horizontal", 4, 3, 5, 3))
sketch13.addConstraint(Sketcher.Constraint("Horizontal", 6, 3, 7, 3))
sketch13.addConstraint(Sketcher.Constraint("Vertical", 4, 3, 6, 3))
sketch13.addConstraint(Sketcher.Constraint("Vertical", 5, 3, 7, 3))
sketch13.addConstraint(Sketcher.Constraint("Diameter", 4, 2.8))
sketch13.addConstraint(Sketcher.Constraint("DistanceX", 1, 1, 1, 2, 34.0))
sketch13.addConstraint(Sketcher.Constraint("DistanceY", 0, 2, 0, 1, 29.0))
sketch13.addConstraint(Sketcher.Constraint("DistanceY", 0, 2, -1, 1, 7.0))
sketch13.addConstraint(Sketcher.Constraint("DistanceX", 4, 3, 5, 3, 20.0))
sketch13.addConstraint(Sketcher.Constraint("DistanceY", 4, 3, 6, 3, 16.0))
sketch13.addConstraint(Sketcher.Constraint("DistanceX", 0, 2, 4, 3, 7.0))
sketch13.addConstraint(Sketcher.Constraint("DistanceY", 4, 3, -1, 1, 1.8))
sketch13.addConstraint(Sketcher.Constraint("DistanceX", 4, 3, -1, 1, 66.75))
sketch13.setExpression("Constraints[15]", "Params.sketch13_diameter")
sketch13.setExpression("Constraints[16]", "Params.sketch13_width")
sketch13.setExpression("Constraints[17]", "Params.sketch13_height")
pad4 = body.newObject("PartDesign::Pad", "Pad003")
pad4.Profile = sketch13
pad4.setExpression("Length", "Params.pad4_length")
pad4.Reversed = True

sketch14 = body.newObject("Sketcher::SketchObject", "Sketch013")
sketch14.AttachmentSupport = (doc.getObject("XZ_Plane"), [""])
sketch14.MapMode = "FlatFace"
sketch14.AttachmentOffset = App.Placement(V(0, 0, 81.375), App.Rotation())
sketch14.addGeometry(Part.LineSegment(V(-74, -7, 0), V(-74, 22, 0)), False)
sketch14.addGeometry(Part.LineSegment(V(-74, 22, 0), V(-40, 22, 0)), False)
sketch14.addGeometry(Part.LineSegment(V(-40, 22, 0), V(-40, -7, 0)), False)
sketch14.addGeometry(Part.LineSegment(V(-40, -7, 0), V(-74, -7, 0)), False)
sketch14.addGeometry(Part.LineSegment(V(-52, 10, 0), V(-62, 10, 0)), False)
sketch14.addGeometry(Part.LineSegment(V(-62, 10, 0), V(-62, 0, 0)), False)
sketch14.addGeometry(Part.LineSegment(V(-62, 0, 0), V(-52, 0, 0)), False)
sketch14.addGeometry(Part.LineSegment(V(-52, 0, 0), V(-52, 10, 0)), False)
sketch14.addConstraint(Sketcher.Constraint("Coincident", 0, 2, 1, 1))
sketch14.addConstraint(Sketcher.Constraint("Coincident", 1, 2, 2, 1))
sketch14.addConstraint(Sketcher.Constraint("Coincident", 2, 2, 3, 1))
sketch14.addConstraint(Sketcher.Constraint("Coincident", 3, 2, 0, 1))
sketch14.addConstraint(Sketcher.Constraint("Coincident", 4, 2, 5, 1))
sketch14.addConstraint(Sketcher.Constraint("Coincident", 5, 2, 6, 1))
sketch14.addConstraint(Sketcher.Constraint("Coincident", 6, 2, 7, 1))
sketch14.addConstraint(Sketcher.Constraint("Coincident", 7, 2, 4, 1))
sketch14.addConstraint(Sketcher.Constraint("Vertical", 0))
sketch14.addConstraint(Sketcher.Constraint("Horizontal", 1))
sketch14.addConstraint(Sketcher.Constraint("Vertical", 2))
sketch14.addConstraint(Sketcher.Constraint("Horizontal", 3))
sketch14.addConstraint(Sketcher.Constraint("Horizontal", 4))
sketch14.addConstraint(Sketcher.Constraint("Vertical", 5))
sketch14.addConstraint(Sketcher.Constraint("Horizontal", 6))
sketch14.addConstraint(Sketcher.Constraint("Vertical", 7))
sketch14.addConstraint(Sketcher.Constraint("PointOnObject", 5, 2, -1))
sketch14.addConstraint(Sketcher.Constraint("Equal", 6, 5))
sketch14.addConstraint(Sketcher.Constraint("DistanceX", 1, 1, 1, 2, 34.0))
sketch14.addConstraint(Sketcher.Constraint("DistanceX", 4, 2, 4, 1, 10.0))
sketch14.addConstraint(Sketcher.Constraint("DistanceY", 0, 1, 0, 2, 29.0))
sketch14.addConstraint(Sketcher.Constraint("DistanceY", -1, 1, 0, 2, 22.0))
sketch14.addConstraint(Sketcher.Constraint("DistanceX", 0, 2, 4, 2, 12.0))
sketch14.addConstraint(Sketcher.Constraint("DistanceX", 0, 2, -1, 1, 73.75))
sketch14.setExpression("Constraints[18]", "Params.sketch14_width")
sketch14.setExpression("Constraints[19]", "Params.sketch14_width2")
sketch14.setExpression("Constraints[20]", "Params.sketch14_height")
pocket10 = body.newObject("PartDesign::Pocket", "Pocket009")
pocket10.Profile = sketch14
pocket10.setExpression("Length", "Params.pocket10_length")
pocket10.Reversed = True

sketch15 = body.newObject("Sketcher::SketchObject", "Sketch014")
sketch15.AttachmentSupport = (doc.getObject("XY_Plane"), [""])
sketch15.MapMode = "FlatFace"
sketch15.AttachmentOffset = App.Placement(V(0, 0, 10), App.Rotation())
sketch15.addGeometry(Part.LineSegment(V(-61.8, -71.4, 0), V(-61.8, -74.4, 0)), False)
sketch15.addGeometry(Part.LineSegment(V(-61.8, -74.4, 0), V(-51.8, -74.4, 0)), False)
sketch15.addGeometry(Part.LineSegment(V(-51.8, -74.4, 0), V(-51.8, -71.4, 0)), False)
sketch15.addGeometry(Part.LineSegment(V(-51.8, -71.4, 0), V(-61.8, -71.4, 0)), False)
sketch15.addConstraint(Sketcher.Constraint("Coincident", 0, 2, 1, 1))
sketch15.addConstraint(Sketcher.Constraint("Coincident", 1, 2, 2, 1))
sketch15.addConstraint(Sketcher.Constraint("Coincident", 2, 2, 3, 1))
sketch15.addConstraint(Sketcher.Constraint("Coincident", 3, 2, 0, 1))
sketch15.addConstraint(Sketcher.Constraint("Vertical", 0))
sketch15.addConstraint(Sketcher.Constraint("Horizontal", 1))
sketch15.addConstraint(Sketcher.Constraint("Vertical", 2))
sketch15.addConstraint(Sketcher.Constraint("Horizontal", 3))
sketch15.addConstraint(Sketcher.Constraint("DistanceX", 1, 1, 1, 2, 10.0))
sketch15.addConstraint(Sketcher.Constraint("DistanceY", 0, 2, 0, 1, 3.0))
sketch15.addConstraint(Sketcher.Constraint("DistanceX", 0, 2, -1, 1, 61.75))
sketch15.addConstraint(Sketcher.Constraint("DistanceY", 0, 2, -1, 1, 74.375))
sketch15.setExpression("Constraints[8]", "Params.sketch15_width")
sketch15.setExpression("Constraints[9]", "Params.sketch15_height")
pocket11 = body.newObject("PartDesign::Pocket", "Pocket010")
pocket11.Profile = sketch15
pocket11.setExpression("Length", "Params.pocket11_length")

doc.recompute()
